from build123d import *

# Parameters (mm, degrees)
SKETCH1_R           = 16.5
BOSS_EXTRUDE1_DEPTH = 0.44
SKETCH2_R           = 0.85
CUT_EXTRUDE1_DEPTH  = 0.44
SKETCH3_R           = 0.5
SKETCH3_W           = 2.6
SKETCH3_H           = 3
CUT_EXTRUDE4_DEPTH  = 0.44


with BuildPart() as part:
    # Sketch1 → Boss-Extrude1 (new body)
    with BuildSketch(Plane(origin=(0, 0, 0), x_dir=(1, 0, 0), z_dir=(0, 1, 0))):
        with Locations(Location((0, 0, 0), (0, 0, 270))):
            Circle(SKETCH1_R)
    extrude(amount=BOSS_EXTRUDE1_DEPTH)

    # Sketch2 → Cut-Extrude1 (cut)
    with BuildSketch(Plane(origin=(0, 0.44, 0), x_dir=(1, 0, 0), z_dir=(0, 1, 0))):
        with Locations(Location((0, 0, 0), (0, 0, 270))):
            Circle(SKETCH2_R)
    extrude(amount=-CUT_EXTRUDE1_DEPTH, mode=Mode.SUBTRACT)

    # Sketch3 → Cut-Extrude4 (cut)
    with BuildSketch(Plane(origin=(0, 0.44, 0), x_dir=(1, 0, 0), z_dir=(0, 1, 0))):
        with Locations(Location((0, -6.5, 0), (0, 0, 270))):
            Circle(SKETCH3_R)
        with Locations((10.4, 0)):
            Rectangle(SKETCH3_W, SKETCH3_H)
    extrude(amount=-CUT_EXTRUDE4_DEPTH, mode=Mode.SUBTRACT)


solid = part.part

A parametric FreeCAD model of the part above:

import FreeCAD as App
import Part
import Sketcher
from FreeCAD import Vector
Q = App.Units.Quantity


def add_polygon(sketch, points):
    """Adds a closed chain of lines whose ends are joined by coincident constraints."""
    first, n = sketch.GeometryCount, len(points)
    for a, b in zip(points, points[1:] + points[:1]):
        sketch.addGeometry(Part.LineSegment(App.Vector(*a, 0), App.Vector(*b, 0)), False)
    for i in range(n):
        sketch.addConstraint(Sketcher.Constraint("Coincident", first + i, 2, first + (i + 1) % n, 1))

doc = App.newDocument("Part")
body = doc.addObject("PartDesign::Body", "Body")

sketch1 = doc.addObject("Sketcher::SketchObject", "Sketch")
body.addObject(sketch1)
sketch1.AttachmentSupport = (doc.XZ_Plane, [""])
sketch1.MapMode = "FlatFace"
sketch1.addGeometry(Part.Circle(Vector(0, 0, 0), Vector(0, 0, 1), 16.5), False)
sketch1.addConstraint(Sketcher.Constraint("Coincident", 0, 3, -1, 1))
sketch1.addConstraint(Sketcher.Constraint("Diameter", 0, Q("33 mm")))
pad1 = doc.addObject("PartDesign::Pad", "Pad")
body.addObject(pad1)
pad1.Profile = sketch1
pad1.Length = 0.44
pad1.Reversed = True

sketch2 = doc.addObject("Sketcher::SketchObject", "Sketch001")
body.addObject(sketch2)
sketch2.AttachmentSupport = (doc.XZ_Plane, [""])
sketch2.MapMode = "FlatFace"
sketch2.AttachmentOffset = App.Placement(Vector(0, 0, -0.44), App.Rotation())
sketch2.addGeometry(Part.Circle(Vector(0, 0, 0), Vector(0, 0, 1), 0.85), False)
sketch2.addConstraint(Sketcher.Constraint("Coincident", 0, 3, -1, 1))
sketch2.addConstraint(Sketcher.Constraint("Diameter", 0, Q("1.7 mm")))
pocket1 = doc.addObject("PartDesign::Pocket", "Pocket")
body.addObject(pocket1)
pocket1.Profile = sketch2
pocket1.Length = 0.44
pocket1.Reversed = True

sketch3 = doc.addObject("Sketcher::SketchObject", "Sketch002")
body.addObject(sketch3)
sketch3.AttachmentSupport = (doc.XZ_Plane, [""])
sketch3.MapMode = "FlatFace"
sketch3.AttachmentOffset = App.Placement(Vector(0, 0, -0.44), App.Rotation())
sketch3.addGeometry(Part.Circle(Vector(0, 6.5, 0), Vector(0, 0, 1), 0.5), False)
add_polygon(sketch3, [(9.1, -1.5), (9.1, 1.5), (11.7, 1.5), (11.7, -1.5)])
sketch3.addConstraint(Sketcher.Constraint("Vertical", 1))
sketch3.addConstraint(Sketcher.Constraint("Horizontal", 2))
sketch3.addConstraint(Sketcher.Constraint("Vertical", 3))
sketch3.addConstraint(Sketcher.Constraint("Horizontal", 4))
sketch3.addConstraint(Sketcher.Constraint("PointOnObject", 0, 3, -2))
sketch3.addConstraint(Sketcher.Constraint("Diameter", 0, Q("1 mm")))
sketch3.addConstraint(Sketcher.Constraint("DistanceY", 1, 1, 1, 2, Q("3 mm")))
sketch3.addConstraint(Sketcher.Constraint("DistanceX", 2, 1, 2, 2, Q("2.6 mm")))
sketch3.addConstraint(Sketcher.Constraint("DistanceY", 1, 2, 0, 3, Q("5 mm")))
sketch3.addConstraint(Sketcher.Constraint("DistanceY", -1, 1, 0, 3, Q("6.5 mm")))
sketch3.addConstraint(Sketcher.Constraint("DistanceX", -1, 1, 1, 2, Q("9.1 mm")))
pocket2 = doc.addObject("PartDesign::Pocket", "Pocket001")
body.addObject(pocket2)
pocket2.Profile = sketch3
pocket2.Length = 0.44
pocket2.Reversed = True

doc.recompute()
